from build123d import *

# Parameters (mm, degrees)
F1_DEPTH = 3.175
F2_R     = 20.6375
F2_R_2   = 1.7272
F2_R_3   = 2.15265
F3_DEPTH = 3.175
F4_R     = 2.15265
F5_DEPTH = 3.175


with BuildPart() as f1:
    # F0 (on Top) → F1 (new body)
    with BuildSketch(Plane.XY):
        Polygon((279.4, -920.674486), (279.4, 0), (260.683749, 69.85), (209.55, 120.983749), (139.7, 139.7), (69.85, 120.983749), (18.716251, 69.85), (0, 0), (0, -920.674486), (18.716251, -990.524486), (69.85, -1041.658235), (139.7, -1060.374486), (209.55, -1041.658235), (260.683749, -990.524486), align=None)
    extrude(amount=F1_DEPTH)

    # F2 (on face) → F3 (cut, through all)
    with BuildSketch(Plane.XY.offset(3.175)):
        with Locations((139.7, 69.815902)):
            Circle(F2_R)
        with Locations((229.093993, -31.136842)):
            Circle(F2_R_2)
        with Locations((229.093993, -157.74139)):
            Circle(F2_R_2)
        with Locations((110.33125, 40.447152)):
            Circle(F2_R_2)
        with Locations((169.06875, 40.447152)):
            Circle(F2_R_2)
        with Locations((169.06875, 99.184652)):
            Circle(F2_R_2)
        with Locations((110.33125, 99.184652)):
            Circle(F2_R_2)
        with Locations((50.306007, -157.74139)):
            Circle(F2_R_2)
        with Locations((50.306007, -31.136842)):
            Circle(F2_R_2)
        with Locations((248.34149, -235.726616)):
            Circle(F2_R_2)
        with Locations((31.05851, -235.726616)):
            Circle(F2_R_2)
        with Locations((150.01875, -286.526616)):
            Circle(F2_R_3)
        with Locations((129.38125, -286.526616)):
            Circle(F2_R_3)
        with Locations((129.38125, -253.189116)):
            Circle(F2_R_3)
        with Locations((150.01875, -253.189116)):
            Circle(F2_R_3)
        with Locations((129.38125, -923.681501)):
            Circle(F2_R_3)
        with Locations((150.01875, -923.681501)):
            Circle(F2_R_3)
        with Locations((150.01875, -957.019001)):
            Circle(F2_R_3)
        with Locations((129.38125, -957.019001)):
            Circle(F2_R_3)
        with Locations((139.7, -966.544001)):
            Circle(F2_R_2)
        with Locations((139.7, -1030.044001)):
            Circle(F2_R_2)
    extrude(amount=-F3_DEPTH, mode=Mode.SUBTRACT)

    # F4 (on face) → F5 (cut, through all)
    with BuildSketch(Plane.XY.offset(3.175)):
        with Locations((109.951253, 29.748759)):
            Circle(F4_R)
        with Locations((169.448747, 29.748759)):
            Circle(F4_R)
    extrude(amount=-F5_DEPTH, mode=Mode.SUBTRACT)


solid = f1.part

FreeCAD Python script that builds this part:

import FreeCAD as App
import Part
import Sketcher

V = App.Vector
Q = App.Units.Quantity


def add_polygon(sketch, points):
    """Adds a closed chain of lines whose ends are joined by coincident constraints."""
    first, n = sketch.GeometryCount, len(points)
    for a, b in zip(points, points[1:] + points[:1]):
        sketch.addGeometry(Part.LineSegment(App.Vector(*a, 0), App.Vector(*b, 0)), False)
    for i in range(n):
        sketch.addConstraint(Sketcher.Constraint("Coincident", first + i, 2, first + (i + 1) % n, 1))

doc = App.newDocument("Part")
body = doc.addObject("PartDesign::Body", "Body")

sketch1 = body.newObject("Sketcher::SketchObject", "Sketch")
sketch1.AttachmentSupport = (doc.getObject("XY_Plane"), [""])
sketch1.MapMode = "FlatFace"
add_polygon(sketch1, [(279.4, -920.674486), (279.4, 0), (260.683749, 69.85), (209.55, 120.983749), (139.7, 139.7), (69.85, 120.983749), (18.716251, 69.85), (0, 0), (0, -920.674486), (18.716251, -990.524486), (69.85, -1041.658235), (139.7, -1060.374486), (209.55, -1041.658235), (260.683749, -990.524486)])
sketch1.addConstraint(Sketcher.Constraint("Vertical", 0))
sketch1.addConstraint(Sketcher.Constraint("Vertical", 7))
sketch1.addConstraint(Sketcher.Constraint("Coincident", 6, 2, -1, 1))
sketch1.addConstraint(Sketcher.Constraint("PointOnObject", 0, 2, -1))
sketch1.addConstraint(Sketcher.Constraint("Perpendicular", 1, 4))
sketch1.addConstraint(Sketcher.Constraint("Perpendicular", 2, 5))
sketch1.addConstraint(Sketcher.Constraint("Perpendicular", 3, 6))
sketch1.addConstraint(Sketcher.Constraint("Perpendicular", 4, 8))
sketch1.addConstraint(Sketcher.Constraint("Perpendicular", 5, 9))
sketch1.addConstraint(Sketcher.Constraint("Perpendicular", 6, 10))
sketch1.addConstraint(Sketcher.Constraint("Perpendicular", 8, 11))
sketch1.addConstraint(Sketcher.Constraint("Perpendicular", 9, 12))
sketch1.addConstraint(Sketcher.Constraint("Perpendicular", 10, 13))
sketch1.addConstraint(Sketcher.Constraint("Horizontal", 2, 2, 4, 2))
sketch1.addConstraint(Sketcher.Constraint("Horizontal", 1, 2, 5, 2))
sketch1.addConstraint(Sketcher.Constraint("Horizontal", 9, 2, 11, 2))
sketch1.addConstraint(Sketcher.Constraint("Horizontal", 8, 2, 12, 2))
sketch1.addConstraint(Sketcher.Constraint("Horizontal", 7, 2, 13, 2))
sketch1.addConstraint(Sketcher.Constraint("Vertical", 5, 2, 8, 2))
sketch1.addConstraint(Sketcher.Constraint("Vertical", 4, 2, 9, 2))
sketch1.addConstraint(Sketcher.Constraint("Vertical", 3, 2, 10, 2))
sketch1.addConstraint(Sketcher.Constraint("Vertical", 2, 2, 11, 2))
sketch1.addConstraint(Sketcher.Constraint("Equal", 1, 2))
sketch1.addConstraint(Sketcher.Constraint("Equal", 2, 3))
sketch1.addConstraint(Sketcher.Constraint("DistanceX", -1, 1, 0, 2, Q("11 in")))
sketch1.addConstraint(Sketcher.Constraint("Angle", 1, Q("105 deg")))
sketch1.addConstraint(Sketcher.Constraint("DistanceY", 0, 1, 0, 2, Q("920.674486 mm")))
pad1 = body.newObject("PartDesign::Pad", "Pad")
pad1.Profile = sketch1
pad1.Length = Q("0.125 in")

sketch2 = body.newObject("Sketcher::SketchObject", "Sketch001")
sketch2.AttachmentSupport = (doc.getObject("XY_Plane"), [""])
sketch2.MapMode = "FlatFace"
sketch2.AttachmentOffset = App.Placement(V(0, 0, 0.125 * 25.4), App.Rotation())
sketch2.addGeometry(Part.Circle(V(139.7, 69.815902, 0), V(0, 0, 1), 20.6375), False)
sketch2.addGeometry(Part.Circle(V(229.093993, -31.136842, 0), V(0, 0, 1), 1.7272), False)
sketch2.addGeometry(Part.Circle(V(229.093993, -157.74139, 0), V(0, 0, 1), 1.7272), False)
sketch2.addGeometry(Part.Circle(V(110.33125, 40.447152, 0), V(0, 0, 1), 1.7272), False)
sketch2.addGeometry(Part.Circle(V(169.06875, 40.447152, 0), V(0, 0, 1), 1.7272), False)
sketch2.addGeometry(Part.Circle(V(169.06875, 99.184652, 0), V(0, 0, 1), 1.7272), False)
sketch2.addGeometry(Part.Circle(V(110.33125, 99.184652, 0), V(0, 0, 1), 1.7272), False)
sketch2.addGeometry(Part.Circle(V(50.306007, -157.74139, 0), V(0, 0, 1), 1.7272), False)
sketch2.addGeometry(Part.Circle(V(50.306007, -31.136842, 0), V(0, 0, 1), 1.7272), False)
sketch2.addGeometry(Part.Circle(V(248.34149, -235.726616, 0), V(0, 0, 1), 1.7272), False)
sketch2.addGeometry(Part.Circle(V(31.05851, -235.726616, 0), V(0, 0, 1), 1.7272), False)
sketch2.addGeometry(Part.Circle(V(150.01875, -286.526616, 0), V(0, 0, 1), 2.15265), False)
sketch2.addGeometry(Part.Circle(V(129.38125, -286.526616, 0), V(0, 0, 1), 2.15265), False)
sketch2.addGeometry(Part.Circle(V(129.38125, -253.189116, 0), V(0, 0, 1), 2.15265), False)
sketch2.addGeometry(Part.Circle(V(150.01875, -253.189116, 0), V(0, 0, 1), 2.15265), False)
sketch2.addGeometry(Part.Circle(V(129.38125, -923.681501, 0), V(0, 0, 1), 2.15265), False)
sketch2.addGeometry(Part.Circle(V(150.01875, -923.681501, 0), V(0, 0, 1), 2.15265), False)
sketch2.addGeometry(Part.Circle(V(150.01875, -957.019001, 0), V(0, 0, 1), 2.15265), False)
sketch2.addGeometry(Part.Circle(V(129.38125, -957.019001, 0), V(0, 0, 1), 2.15265), False)
sketch2.addGeometry(Part.Circle(V(139.7, -966.544001, 0), V(0, 0, 1), 1.7272), False)
sketch2.addGeometry(Part.Circle(V(139.7, -1030.044001, 0), V(0, 0, 1), 1.7272), False)
sketch2.addConstraint(Sketcher.Constraint("Equal", 1, 2))
sketch2.addConstraint(Sketcher.Constraint("Equal", 2, 3))
sketch2.addConstraint(Sketcher.Constraint("Equal", 3, 4))
sketch2.addConstraint(Sketcher.Constraint("Equal", 4, 5))
sketch2.addConstraint(Sketcher.Constraint("Equal", 5, 6))
sketch2.addConstraint(Sketcher.Constraint("Equal", 6, 7))
sketch2.addConstraint(Sketcher.Constraint("Equal", 7, 8))
sketch2.addConstraint(Sketcher.Constraint("Equal", 8, 9))
sketch2.addConstraint(Sketcher.Constraint("Equal", 9, 10))
sketch2.addConstraint(Sketcher.Constraint("Equal", 11, 12))
sketch2.addConstraint(Sketcher.Constraint("Equal", 12, 13))
sketch2.addConstraint(Sketcher.Constraint("Equal", 13, 14))
sketch2.addConstraint(Sketcher.Constraint("Equal", 14, 15))
sketch2.addConstraint(Sketcher.Constraint("Equal", 15, 16))
sketch2.addConstraint(Sketcher.Constraint("Equal", 16, 17))
sketch2.addConstraint(Sketcher.Constraint("Equal", 17, 18))
sketch2.addConstraint(Sketcher.Constraint("Equal", 10, 19))
sketch2.addConstraint(Sketcher.Constraint("Equal", 19, 20))
sketch2.addConstraint(Sketcher.Constraint("Horizontal", 3, 3, 4, 3))
sketch2.addConstraint(Sketcher.Constraint("Horizontal", 5, 3, 6, 3))
sketch2.addConstraint(Sketcher.Constraint("Horizontal", 2, 3, 7, 3))
sketch2.addConstraint(Sketcher.Constraint("Horizontal", 1, 3, 8, 3))
sketch2.addConstraint(Sketcher.Constraint("Horizontal", 9, 3, 10, 3))
sketch2.addConstraint(Sketcher.Constraint("Horizontal", 11, 3, 12, 3))
sketch2.addConstraint(Sketcher.Constraint("Horizontal", 13, 3, 14, 3))
sketch2.addConstraint(Sketcher.Constraint("Horizontal", 15, 3, 16, 3))
sketch2.addConstraint(Sketcher.Constraint("Horizontal", 17, 3, 18, 3))
sketch2.addConstraint(Sketcher.Constraint("Vertical", 1, 3, 2, 3))
sketch2.addConstraint(Sketcher.Constraint("Vertical", 4, 3, 5, 3))
sketch2.addConstraint(Sketcher.Constraint("Vertical", 3, 3, 6, 3))
sketch2.addConstraint(Sketcher.Constraint("Vertical", 7, 3, 8, 3))
sketch2.addConstraint(Sketcher.Constraint("Vertical", 12, 3, 13, 3))
sketch2.addConstraint(Sketcher.Constraint("Vertical", 11, 3, 14, 3))
sketch2.addConstraint(Sketcher.Constraint("Vertical", 13, 3, 15, 3))
sketch2.addConstraint(Sketcher.Constraint("Vertical", 14, 3, 16, 3))
sketch2.addConstraint(Sketcher.Constraint("Vertical", 16, 3, 17, 3))
sketch2.addConstraint(Sketcher.Constraint("Vertical", 15, 3, 18, 3))
sketch2.addConstraint(Sketcher.Constraint("Vertical", 0, 3, 19, 3))
sketch2.addConstraint(Sketcher.Constraint("Vertical", 19, 3, 20, 3))
sketch2.addConstraint(Sketcher.Constraint("Diameter", 0, Q("1.625 in")))
sketch2.addConstraint(Sketcher.Constraint("Diameter", 1, Q("0.136 in")))
sketch2.addConstraint(Sketcher.Constraint("DistanceY", 11, 3, 9, 3, Q("2 in")))
sketch2.addConstraint(Sketcher.Constraint("Diameter", 11, Q("0.1695 in")))
sketch2.addConstraint(Sketcher.Constraint("DistanceX", -1, 1, 0, 3, Q("5.5 in")))
sketch2.addConstraint(Sketcher.Constraint("DistanceY", 20, 3, 19, 3, Q("2.5 in")))
sketch2.addConstraint(Sketcher.Constraint("DistanceX", -1, 1, 3, 3, Q("4.34375 in")))
sketch2.addConstraint(Sketcher.Constraint("DistanceX", -1, 1, 4, 3, Q("6.65625 in")))
sketch2.addConstraint(Sketcher.Constraint("DistanceX", -1, 1, 11, 3, Q("5.90625 in")))
sketch2.addConstraint(Sketcher.Constraint("DistanceX", -1, 1, 12, 3, Q("5.09375 in")))
sketch2.addConstraint(Sketcher.Constraint("DistanceY", 3, 3, 0, 3, Q("1.15625 in")))
sketch2.addConstraint(Sketcher.Constraint("DistanceY", 0, 3, 5, 3, Q("1.15625 in")))
sketch2.addConstraint(Sketcher.Constraint("DistanceY", 12, 3, 13, 3, Q("1.3125 in")))
sketch2.addConstraint(Sketcher.Constraint("DistanceY", 17, 3, 16, 3, Q("1.3125 in")))
sketch2.addConstraint(Sketcher.Constraint("DistanceY", 19, 3, 18, 3, Q("0.375 in")))
sketch2.addConstraint(Sketcher.Constraint("DistanceY", -1, 1, 0, 3, Q("69.815902 mm")))
sketch2.addConstraint(Sketcher.Constraint("DistanceY", 15, 3, -1, 1, Q("923.681501 mm")))
sketch2.addConstraint(Sketcher.Constraint("DistanceY", 2, 3, -1, 1, Q("157.74139 mm")))
sketch2.addConstraint(Sketcher.Constraint("DistanceX", -1, 1, 9, 3, Q("248.34149 mm")))
sketch2.addConstraint(Sketcher.Constraint("DistanceX", -1, 1, 10, 3, Q("31.05851 mm")))
sketch2.addConstraint(Sketcher.Constraint("DistanceY", 9, 3, 4, 3, Q("276.173768 mm")))
sketch2.addConstraint(Sketcher.Constraint("DistanceX", -1, 1, 1, 3, Q("229.093993 mm")))
sketch2.addConstraint(Sketcher.Constraint("DistanceY", 1, 3, -1, 1, Q("31.136842 mm")))
sketch2.addConstraint(Sketcher.Constraint("DistanceX", -1, 1, 7, 3, Q("50.306007 mm")))
pocket1 = body.newObject("PartDesign::Pocket", "Pocket")
pocket1.Profile = sketch2
pocket1.Type = "ThroughAll"

sketch3 = body.newObject("Sketcher::SketchObject", "Sketch002")
sketch3.AttachmentSupport = (doc.getObject("XY_Plane"), [""])
sketch3.MapMode = "FlatFace"
sketch3.AttachmentOffset = App.Placement(V(0, 0, 0.125 * 25.4), App.Rotation())
sketch3.addGeometry(Part.Circle(V(109.951253, 29.748759, 0), V(0, 0, 1), 2.15265), False)
sketch3.addGeometry(Part.Circle(V(169.448747, 29.748759, 0), V(0, 0, 1), 2.15265), False)
sketch3.addConstraint(Sketcher.Constraint("Equal", 0, 1))
sketch3.addConstraint(Sketcher.Constraint("Horizontal", 0, 3, 1, 3))
sketch3.addConstraint(Sketcher.Constraint("Diameter", 0, Q("0.1695 in")))
sketch3.addConstraint(Sketcher.Constraint("DistanceY", -1, 1, 0, 3, Q("29.748759 mm")))
sketch3.addConstraint(Sketcher.Constraint("DistanceX", -1, 1, 0, 3, Q("109.951253 mm")))
sketch3.addConstraint(Sketcher.Constraint("DistanceX", -1, 1, 1, 3, Q("169.448747 mm")))
pocket2 = body.newObject("PartDesign::Pocket", "Pocket001")
pocket2.Profile = sketch3
pocket2.Type = "ThroughAll"

doc.recompute()
